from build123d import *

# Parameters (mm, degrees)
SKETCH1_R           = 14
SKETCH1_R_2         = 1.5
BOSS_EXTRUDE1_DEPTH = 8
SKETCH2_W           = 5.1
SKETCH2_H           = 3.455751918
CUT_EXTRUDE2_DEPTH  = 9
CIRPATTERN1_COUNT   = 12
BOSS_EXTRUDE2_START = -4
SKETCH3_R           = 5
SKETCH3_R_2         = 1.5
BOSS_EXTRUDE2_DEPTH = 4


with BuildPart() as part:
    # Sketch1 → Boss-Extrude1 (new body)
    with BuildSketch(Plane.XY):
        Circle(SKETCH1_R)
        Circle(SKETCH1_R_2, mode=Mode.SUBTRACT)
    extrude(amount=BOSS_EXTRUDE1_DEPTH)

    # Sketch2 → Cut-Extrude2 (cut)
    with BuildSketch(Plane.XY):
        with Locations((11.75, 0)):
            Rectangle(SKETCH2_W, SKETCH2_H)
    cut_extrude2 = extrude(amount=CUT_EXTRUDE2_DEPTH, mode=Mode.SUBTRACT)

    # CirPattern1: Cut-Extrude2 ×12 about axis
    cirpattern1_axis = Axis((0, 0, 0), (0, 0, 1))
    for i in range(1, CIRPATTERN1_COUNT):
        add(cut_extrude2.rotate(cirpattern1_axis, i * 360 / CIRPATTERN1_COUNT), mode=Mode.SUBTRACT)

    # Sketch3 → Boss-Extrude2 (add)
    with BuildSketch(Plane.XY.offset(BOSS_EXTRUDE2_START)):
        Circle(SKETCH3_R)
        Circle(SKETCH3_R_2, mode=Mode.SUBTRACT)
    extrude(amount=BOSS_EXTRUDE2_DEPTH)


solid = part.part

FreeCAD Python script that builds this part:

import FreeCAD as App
import Part
import Sketcher

V = App.Vector
Q = App.Units.Quantity

doc = App.newDocument("Part")
params = doc.addObject("Spreadsheet::Sheet", "Params")
for row, (alias, value) in enumerate([
    ("sketch1_diameter", "28 mm"),
    ("sketch1_diameter2", "3 mm"),
    ("pad1_length", "8 mm"),
    ("sketch2_width", "5.1 mm"),
    ("pocket1_length", "9 mm"),
    ("sketch3_diameter", "10 mm"),
    ("sketch3_diameter2", "3 mm"),
    ("pad2_length", "4 mm"),
], start=1):
    params.set(f"A{row}", alias)
    params.set(f"B{row}", "=" + value)
    params.setAlias(f"B{row}", alias)

body = doc.addObject("PartDesign::Body", "Body")

# Sketch on XY plane
sketch1 = body.newObject("Sketcher::SketchObject", "Sketch")
sketch1.AttachmentSupport = (doc.getObject("XY_Plane"), [""])
sketch1.MapMode = "FlatFace"
sketch1.addGeometry([
    Part.Circle(V(0, 0, 0), V(0, 0, 1), 14),
    Part.Circle(V(0, 0, 0), V(0, 0, 1), 1.5),
], False)
sketch1.addConstraint([
    Sketcher.Constraint("Coincident", 0, 3, -1, 1),
    Sketcher.Constraint("Coincident", 1, 3, -1, 1),
    Sketcher.Constraint("Diameter", 0, Q("28 mm")),
    Sketcher.Constraint("Diameter", 1, Q("3 mm")),
])
sketch1.setExpression("Constraints[2]", "Params.sketch1_diameter")
sketch1.setExpression("Constraints[3]", "Params.sketch1_diameter2")
pad1 = body.newObject("PartDesign::Pad", "Pad")
pad1.Profile = sketch1
pad1.setExpression("Length", "Params.pad1_length")

# Sketch on XY plane
sketch2 = body.newObject("Sketcher::SketchObject", "Sketch001")
sketch2.AttachmentSupport = (doc.getObject("XY_Plane"), [""])
sketch2.MapMode = "FlatFace"
sketch2.addGeometry([
    Part.LineSegment(V(9.2, 1.727876, 0), V(9.2, -1.727876, 0)),
    Part.LineSegment(V(9.2, -1.727876, 0), V(14.3, -1.727876, 0)),
    Part.LineSegment(V(14.3, -1.727876, 0), V(14.3, 1.727876, 0)),
    Part.LineSegment(V(14.3, 1.727876, 0), V(9.2, 1.727876, 0)),
], False)
sketch2.addConstraint([
    Sketcher.Constraint("Coincident", 0, 2, 1, 1),
    Sketcher.Constraint("Coincident", 1, 2, 2, 1),
    Sketcher.Constraint("Coincident", 2, 2, 3, 1),
    Sketcher.Constraint("Coincident", 3, 2, 0, 1),
    Sketcher.Constraint("Vertical", 0),
    Sketcher.Constraint("Horizontal", 1),
    Sketcher.Constraint("Vertical", 2),
    Sketcher.Constraint("Horizontal", 3),
    Sketcher.Constraint("DistanceX", 1, 1, 1, 2, Q("5.1 mm")),
    Sketcher.Constraint("DistanceX", -1, 1, 0, 2, Q("9.2 mm")),
    Sketcher.Constraint("DistanceY", 0, 2, 0, 1, Q("3.455752 mm")),
    Sketcher.Constraint("DistanceY", 0, 2, -1, 1, Q("1.727876 mm")),
])
sketch2.setExpression("Constraints[8]", "Params.sketch2_width")
pocket1 = body.newObject("PartDesign::Pocket", "Pocket")
pocket1.Profile = sketch2
pocket1.setExpression("Length", "Params.pocket1_length")
pocket1.Reversed = True
doc.recompute()

polarpattern = body.newObject("PartDesign::PolarPattern", "PolarPattern")
polarpattern.Originals = [pocket1]
polarpattern.Axis = (doc.getObject("Z_Axis"), [""])
polarpattern.Angle = 360
polarpattern.Occurrences = 12
body.Tip = polarpattern

# Sketch on XY plane
sketch3 = body.newObject("Sketcher::SketchObject", "Sketch002")
sketch3.AttachmentSupport = (doc.getObject("XY_Plane"), [""])
sketch3.MapMode = "FlatFace"
sketch3.AttachmentOffset = App.Placement(V(0, 0, -4), App.Rotation())
sketch3.addGeometry([
    Part.Circle(V(0, 0, 0), V(0, 0, 1), 5),
    Part.Circle(V(0, 0, 0), V(0, 0, 1), 1.5),
], False)
sketch3.addConstraint([
    Sketcher.Constraint("Coincident", 0, 3, -1, 1),
    Sketcher.Constraint("Coincident", 1, 3, -1, 1),
    Sketcher.Constraint("Diameter", 0, Q("10 mm")),
    Sketcher.Constraint("Diameter", 1, Q("3 mm")),
])
sketch3.setExpression("Constraints[2]", "Params.sketch3_diameter")
sketch3.setExpression("Constraints[3]", "Params.sketch3_diameter2")
pad2 = body.newObject("PartDesign::Pad", "Pad001")
pad2.Profile = sketch3
pad2.setExpression("Length", "Params.pad2_length")

doc.recompute()
